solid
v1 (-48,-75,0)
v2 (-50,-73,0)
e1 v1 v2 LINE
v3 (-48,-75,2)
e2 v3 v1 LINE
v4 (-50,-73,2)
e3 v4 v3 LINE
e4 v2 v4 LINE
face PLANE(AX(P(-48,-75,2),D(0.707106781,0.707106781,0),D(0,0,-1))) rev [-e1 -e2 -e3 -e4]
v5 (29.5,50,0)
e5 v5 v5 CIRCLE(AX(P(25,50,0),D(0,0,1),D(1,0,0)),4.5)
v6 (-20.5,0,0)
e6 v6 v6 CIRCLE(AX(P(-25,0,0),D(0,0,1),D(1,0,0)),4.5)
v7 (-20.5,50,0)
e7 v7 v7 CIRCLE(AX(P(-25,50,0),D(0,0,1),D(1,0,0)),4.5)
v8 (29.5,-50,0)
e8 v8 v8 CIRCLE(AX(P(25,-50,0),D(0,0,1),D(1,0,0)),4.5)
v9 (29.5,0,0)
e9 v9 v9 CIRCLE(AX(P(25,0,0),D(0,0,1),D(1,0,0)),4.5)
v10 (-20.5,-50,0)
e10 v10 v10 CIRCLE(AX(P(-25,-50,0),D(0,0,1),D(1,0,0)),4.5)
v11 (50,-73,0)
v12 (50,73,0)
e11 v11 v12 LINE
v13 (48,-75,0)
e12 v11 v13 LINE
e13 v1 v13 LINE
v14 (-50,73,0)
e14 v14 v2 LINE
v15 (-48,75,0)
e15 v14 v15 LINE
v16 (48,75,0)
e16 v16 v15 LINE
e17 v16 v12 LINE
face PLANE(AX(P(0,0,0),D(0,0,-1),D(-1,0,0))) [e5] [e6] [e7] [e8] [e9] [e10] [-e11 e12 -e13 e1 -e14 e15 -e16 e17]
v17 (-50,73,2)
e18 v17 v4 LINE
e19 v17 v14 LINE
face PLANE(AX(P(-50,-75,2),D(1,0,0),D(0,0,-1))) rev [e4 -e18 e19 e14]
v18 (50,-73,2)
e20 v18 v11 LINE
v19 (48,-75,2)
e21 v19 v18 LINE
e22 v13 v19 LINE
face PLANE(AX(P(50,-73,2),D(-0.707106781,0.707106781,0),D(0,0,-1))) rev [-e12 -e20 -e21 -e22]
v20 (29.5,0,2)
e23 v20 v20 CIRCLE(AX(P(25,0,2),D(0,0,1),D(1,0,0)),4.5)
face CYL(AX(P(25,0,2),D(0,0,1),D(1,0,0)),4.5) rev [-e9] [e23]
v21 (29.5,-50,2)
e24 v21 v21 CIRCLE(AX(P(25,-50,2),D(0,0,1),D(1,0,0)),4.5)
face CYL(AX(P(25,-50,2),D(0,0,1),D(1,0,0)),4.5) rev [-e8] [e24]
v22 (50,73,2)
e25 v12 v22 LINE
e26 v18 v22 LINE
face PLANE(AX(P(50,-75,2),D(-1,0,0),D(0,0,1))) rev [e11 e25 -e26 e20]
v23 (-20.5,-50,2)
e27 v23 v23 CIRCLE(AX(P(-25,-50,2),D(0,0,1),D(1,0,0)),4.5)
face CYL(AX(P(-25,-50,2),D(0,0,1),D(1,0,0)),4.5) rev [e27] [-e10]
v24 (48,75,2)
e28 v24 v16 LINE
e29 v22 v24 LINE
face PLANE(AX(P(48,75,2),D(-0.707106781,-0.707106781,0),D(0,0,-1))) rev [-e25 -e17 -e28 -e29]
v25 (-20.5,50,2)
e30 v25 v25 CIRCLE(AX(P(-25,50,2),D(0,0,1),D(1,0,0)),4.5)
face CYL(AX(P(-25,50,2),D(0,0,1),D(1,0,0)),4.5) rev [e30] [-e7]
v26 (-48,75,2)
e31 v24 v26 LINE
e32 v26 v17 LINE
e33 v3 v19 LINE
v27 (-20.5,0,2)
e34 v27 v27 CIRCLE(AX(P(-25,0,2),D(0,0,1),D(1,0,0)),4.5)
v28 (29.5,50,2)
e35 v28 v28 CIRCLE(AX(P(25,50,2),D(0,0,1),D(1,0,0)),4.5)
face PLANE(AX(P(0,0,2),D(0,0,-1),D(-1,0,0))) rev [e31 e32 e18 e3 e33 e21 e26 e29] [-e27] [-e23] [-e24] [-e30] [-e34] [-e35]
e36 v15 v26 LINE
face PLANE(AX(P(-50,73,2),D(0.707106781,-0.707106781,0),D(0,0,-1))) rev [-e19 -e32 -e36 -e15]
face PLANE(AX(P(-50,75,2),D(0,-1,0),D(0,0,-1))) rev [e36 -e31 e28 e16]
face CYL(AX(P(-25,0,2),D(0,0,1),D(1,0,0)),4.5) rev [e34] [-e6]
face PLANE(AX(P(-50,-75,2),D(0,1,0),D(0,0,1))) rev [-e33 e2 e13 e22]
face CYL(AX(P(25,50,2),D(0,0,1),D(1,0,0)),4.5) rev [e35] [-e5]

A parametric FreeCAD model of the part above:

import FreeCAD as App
import Part
import Sketcher

V = App.Vector
Q = App.Units.Quantity


def edges_at(feature, points):
    """Names of the edges that pass closest to the given points."""
    edges = feature.Shape.Edges
    near = lambda p: min(range(len(edges)), key=lambda i: edges[i].distToShape(Part.Vertex(*p))[0])
    return sorted({f"Edge{near(p) + 1}" for p in points})

doc = App.newDocument("Part")
body = doc.addObject("PartDesign::Body", "Body")

# Sketch on XY plane
sketch1 = body.newObject("Sketcher::SketchObject", "Sketch")
sketch1.AttachmentSupport = (doc.getObject("XY_Plane"), [""])
sketch1.MapMode = "FlatFace"
sketch1.addGeometry(Part.LineSegment(V(-50, 75, 0), V(-50, -75, 0)), False)
sketch1.addGeometry(Part.LineSegment(V(-50, -75, 0), V(50, -75, 0)), False)
sketch1.addGeometry(Part.LineSegment(V(50, -75, 0), V(50, 75, 0)), False)
sketch1.addGeometry(Part.LineSegment(V(50, 75, 0), V(-50, 75, 0)), False)
sketch1.addConstraint(Sketcher.Constraint("Coincident", 0, 2, 1, 1))
sketch1.addConstraint(Sketcher.Constraint("Coincident", 1, 2, 2, 1))
sketch1.addConstraint(Sketcher.Constraint("Coincident", 2, 2, 3, 1))
sketch1.addConstraint(Sketcher.Constraint("Coincident", 3, 2, 0, 1))
sketch1.addConstraint(Sketcher.Constraint("Vertical", 0))
sketch1.addConstraint(Sketcher.Constraint("Horizontal", 1))
sketch1.addConstraint(Sketcher.Constraint("Vertical", 2))
sketch1.addConstraint(Sketcher.Constraint("Horizontal", 3))
sketch1.addConstraint(Sketcher.Constraint("Symmetric", 0, 2, 2, 2, -1, 1))
sketch1.addConstraint(Sketcher.Constraint("DistanceX", 1, 1, 1, 2, Q("100 mm")))
sketch1.addConstraint(Sketcher.Constraint("DistanceY", 0, 2, 0, 1, Q("150 mm")))
pad1 = body.newObject("PartDesign::Pad", "Pad")
pad1.Profile = sketch1
pad1.Length = 2
doc.recompute()

chamfer = body.newObject("PartDesign::Chamfer", "Chamfer")
chamfer.Base = (pad1, edges_at(pad1, [
    (50, -75, 1),
    (-50, -75, 1),
    (-50, 75, 1),
    (50, 75, 1),
]))
chamfer.Size = 2

# Sketch on XY plane
sketch2 = body.newObject("Sketcher::SketchObject", "Sketch001")
sketch2.AttachmentSupport = (doc.getObject("XY_Plane"), [""])
sketch2.MapMode = "FlatFace"
sketch2.AttachmentOffset = App.Placement(V(0, 0, 2), App.Rotation())
sketch2.addGeometry(Part.Circle(V(-25, 50, 0), V(0, 0, 1), 4.5), False)
sketch2.addGeometry(Part.Circle(V(25, 50, 0), V(0, 0, 1), 4.5), False)
sketch2.addGeometry(Part.Circle(V(25, 0, 0), V(0, 0, 1), 4.5), False)
sketch2.addGeometry(Part.Circle(V(-25, 0, 0), V(0, 0, 1), 4.5), False)
sketch2.addGeometry(Part.Circle(V(-25, -50, 0), V(0, 0, 1), 4.5), False)
sketch2.addGeometry(Part.Circle(V(25, -50, 0), V(0, 0, 1), 4.5), False)
sketch2.addConstraint(Sketcher.Constraint("Equal", 0, 1))
sketch2.addConstraint(Sketcher.Constraint("Equal", 1, 2))
sketch2.addConstraint(Sketcher.Constraint("Equal", 2, 3))
sketch2.addConstraint(Sketcher.Constraint("Equal", 3, 4))
sketch2.addConstraint(Sketcher.Constraint("Equal", 4, 5))
sketch2.addConstraint(Sketcher.Constraint("Symmetric", 2, 3, 3, 3, -1, 1))
sketch2.addConstraint(Sketcher.Constraint("Symmetric", 1, 3, 4, 3, -1, 1))
sketch2.addConstraint(Sketcher.Constraint("Symmetric", 0, 3, 5, 3, -1, 1))
sketch2.addConstraint(Sketcher.Constraint("Symmetric", 0, 3, 1, 3, -2))
sketch2.addConstraint(Sketcher.Constraint("PointOnObject", 2, 3, -1))
sketch2.addConstraint(Sketcher.Constraint("Vertical", 1, 3, 2, 3))
sketch2.addConstraint(Sketcher.Constraint("Diameter", 0, Q("9 mm")))
sketch2.addConstraint(Sketcher.Constraint("DistanceX", 0, 3, -1, 1, Q("25 mm")))
sketch2.addConstraint(Sketcher.Constraint("DistanceY", -1, 1, 0, 3, Q("50 mm")))
doc.recompute()
hole = body.newObject("PartDesign::Hole", "Hole")
hole.Profile = sketch2
hole.ThreadType = "None"
hole.Diameter = 9
hole.DepthType = "ThroughAll"

doc.recompute()
